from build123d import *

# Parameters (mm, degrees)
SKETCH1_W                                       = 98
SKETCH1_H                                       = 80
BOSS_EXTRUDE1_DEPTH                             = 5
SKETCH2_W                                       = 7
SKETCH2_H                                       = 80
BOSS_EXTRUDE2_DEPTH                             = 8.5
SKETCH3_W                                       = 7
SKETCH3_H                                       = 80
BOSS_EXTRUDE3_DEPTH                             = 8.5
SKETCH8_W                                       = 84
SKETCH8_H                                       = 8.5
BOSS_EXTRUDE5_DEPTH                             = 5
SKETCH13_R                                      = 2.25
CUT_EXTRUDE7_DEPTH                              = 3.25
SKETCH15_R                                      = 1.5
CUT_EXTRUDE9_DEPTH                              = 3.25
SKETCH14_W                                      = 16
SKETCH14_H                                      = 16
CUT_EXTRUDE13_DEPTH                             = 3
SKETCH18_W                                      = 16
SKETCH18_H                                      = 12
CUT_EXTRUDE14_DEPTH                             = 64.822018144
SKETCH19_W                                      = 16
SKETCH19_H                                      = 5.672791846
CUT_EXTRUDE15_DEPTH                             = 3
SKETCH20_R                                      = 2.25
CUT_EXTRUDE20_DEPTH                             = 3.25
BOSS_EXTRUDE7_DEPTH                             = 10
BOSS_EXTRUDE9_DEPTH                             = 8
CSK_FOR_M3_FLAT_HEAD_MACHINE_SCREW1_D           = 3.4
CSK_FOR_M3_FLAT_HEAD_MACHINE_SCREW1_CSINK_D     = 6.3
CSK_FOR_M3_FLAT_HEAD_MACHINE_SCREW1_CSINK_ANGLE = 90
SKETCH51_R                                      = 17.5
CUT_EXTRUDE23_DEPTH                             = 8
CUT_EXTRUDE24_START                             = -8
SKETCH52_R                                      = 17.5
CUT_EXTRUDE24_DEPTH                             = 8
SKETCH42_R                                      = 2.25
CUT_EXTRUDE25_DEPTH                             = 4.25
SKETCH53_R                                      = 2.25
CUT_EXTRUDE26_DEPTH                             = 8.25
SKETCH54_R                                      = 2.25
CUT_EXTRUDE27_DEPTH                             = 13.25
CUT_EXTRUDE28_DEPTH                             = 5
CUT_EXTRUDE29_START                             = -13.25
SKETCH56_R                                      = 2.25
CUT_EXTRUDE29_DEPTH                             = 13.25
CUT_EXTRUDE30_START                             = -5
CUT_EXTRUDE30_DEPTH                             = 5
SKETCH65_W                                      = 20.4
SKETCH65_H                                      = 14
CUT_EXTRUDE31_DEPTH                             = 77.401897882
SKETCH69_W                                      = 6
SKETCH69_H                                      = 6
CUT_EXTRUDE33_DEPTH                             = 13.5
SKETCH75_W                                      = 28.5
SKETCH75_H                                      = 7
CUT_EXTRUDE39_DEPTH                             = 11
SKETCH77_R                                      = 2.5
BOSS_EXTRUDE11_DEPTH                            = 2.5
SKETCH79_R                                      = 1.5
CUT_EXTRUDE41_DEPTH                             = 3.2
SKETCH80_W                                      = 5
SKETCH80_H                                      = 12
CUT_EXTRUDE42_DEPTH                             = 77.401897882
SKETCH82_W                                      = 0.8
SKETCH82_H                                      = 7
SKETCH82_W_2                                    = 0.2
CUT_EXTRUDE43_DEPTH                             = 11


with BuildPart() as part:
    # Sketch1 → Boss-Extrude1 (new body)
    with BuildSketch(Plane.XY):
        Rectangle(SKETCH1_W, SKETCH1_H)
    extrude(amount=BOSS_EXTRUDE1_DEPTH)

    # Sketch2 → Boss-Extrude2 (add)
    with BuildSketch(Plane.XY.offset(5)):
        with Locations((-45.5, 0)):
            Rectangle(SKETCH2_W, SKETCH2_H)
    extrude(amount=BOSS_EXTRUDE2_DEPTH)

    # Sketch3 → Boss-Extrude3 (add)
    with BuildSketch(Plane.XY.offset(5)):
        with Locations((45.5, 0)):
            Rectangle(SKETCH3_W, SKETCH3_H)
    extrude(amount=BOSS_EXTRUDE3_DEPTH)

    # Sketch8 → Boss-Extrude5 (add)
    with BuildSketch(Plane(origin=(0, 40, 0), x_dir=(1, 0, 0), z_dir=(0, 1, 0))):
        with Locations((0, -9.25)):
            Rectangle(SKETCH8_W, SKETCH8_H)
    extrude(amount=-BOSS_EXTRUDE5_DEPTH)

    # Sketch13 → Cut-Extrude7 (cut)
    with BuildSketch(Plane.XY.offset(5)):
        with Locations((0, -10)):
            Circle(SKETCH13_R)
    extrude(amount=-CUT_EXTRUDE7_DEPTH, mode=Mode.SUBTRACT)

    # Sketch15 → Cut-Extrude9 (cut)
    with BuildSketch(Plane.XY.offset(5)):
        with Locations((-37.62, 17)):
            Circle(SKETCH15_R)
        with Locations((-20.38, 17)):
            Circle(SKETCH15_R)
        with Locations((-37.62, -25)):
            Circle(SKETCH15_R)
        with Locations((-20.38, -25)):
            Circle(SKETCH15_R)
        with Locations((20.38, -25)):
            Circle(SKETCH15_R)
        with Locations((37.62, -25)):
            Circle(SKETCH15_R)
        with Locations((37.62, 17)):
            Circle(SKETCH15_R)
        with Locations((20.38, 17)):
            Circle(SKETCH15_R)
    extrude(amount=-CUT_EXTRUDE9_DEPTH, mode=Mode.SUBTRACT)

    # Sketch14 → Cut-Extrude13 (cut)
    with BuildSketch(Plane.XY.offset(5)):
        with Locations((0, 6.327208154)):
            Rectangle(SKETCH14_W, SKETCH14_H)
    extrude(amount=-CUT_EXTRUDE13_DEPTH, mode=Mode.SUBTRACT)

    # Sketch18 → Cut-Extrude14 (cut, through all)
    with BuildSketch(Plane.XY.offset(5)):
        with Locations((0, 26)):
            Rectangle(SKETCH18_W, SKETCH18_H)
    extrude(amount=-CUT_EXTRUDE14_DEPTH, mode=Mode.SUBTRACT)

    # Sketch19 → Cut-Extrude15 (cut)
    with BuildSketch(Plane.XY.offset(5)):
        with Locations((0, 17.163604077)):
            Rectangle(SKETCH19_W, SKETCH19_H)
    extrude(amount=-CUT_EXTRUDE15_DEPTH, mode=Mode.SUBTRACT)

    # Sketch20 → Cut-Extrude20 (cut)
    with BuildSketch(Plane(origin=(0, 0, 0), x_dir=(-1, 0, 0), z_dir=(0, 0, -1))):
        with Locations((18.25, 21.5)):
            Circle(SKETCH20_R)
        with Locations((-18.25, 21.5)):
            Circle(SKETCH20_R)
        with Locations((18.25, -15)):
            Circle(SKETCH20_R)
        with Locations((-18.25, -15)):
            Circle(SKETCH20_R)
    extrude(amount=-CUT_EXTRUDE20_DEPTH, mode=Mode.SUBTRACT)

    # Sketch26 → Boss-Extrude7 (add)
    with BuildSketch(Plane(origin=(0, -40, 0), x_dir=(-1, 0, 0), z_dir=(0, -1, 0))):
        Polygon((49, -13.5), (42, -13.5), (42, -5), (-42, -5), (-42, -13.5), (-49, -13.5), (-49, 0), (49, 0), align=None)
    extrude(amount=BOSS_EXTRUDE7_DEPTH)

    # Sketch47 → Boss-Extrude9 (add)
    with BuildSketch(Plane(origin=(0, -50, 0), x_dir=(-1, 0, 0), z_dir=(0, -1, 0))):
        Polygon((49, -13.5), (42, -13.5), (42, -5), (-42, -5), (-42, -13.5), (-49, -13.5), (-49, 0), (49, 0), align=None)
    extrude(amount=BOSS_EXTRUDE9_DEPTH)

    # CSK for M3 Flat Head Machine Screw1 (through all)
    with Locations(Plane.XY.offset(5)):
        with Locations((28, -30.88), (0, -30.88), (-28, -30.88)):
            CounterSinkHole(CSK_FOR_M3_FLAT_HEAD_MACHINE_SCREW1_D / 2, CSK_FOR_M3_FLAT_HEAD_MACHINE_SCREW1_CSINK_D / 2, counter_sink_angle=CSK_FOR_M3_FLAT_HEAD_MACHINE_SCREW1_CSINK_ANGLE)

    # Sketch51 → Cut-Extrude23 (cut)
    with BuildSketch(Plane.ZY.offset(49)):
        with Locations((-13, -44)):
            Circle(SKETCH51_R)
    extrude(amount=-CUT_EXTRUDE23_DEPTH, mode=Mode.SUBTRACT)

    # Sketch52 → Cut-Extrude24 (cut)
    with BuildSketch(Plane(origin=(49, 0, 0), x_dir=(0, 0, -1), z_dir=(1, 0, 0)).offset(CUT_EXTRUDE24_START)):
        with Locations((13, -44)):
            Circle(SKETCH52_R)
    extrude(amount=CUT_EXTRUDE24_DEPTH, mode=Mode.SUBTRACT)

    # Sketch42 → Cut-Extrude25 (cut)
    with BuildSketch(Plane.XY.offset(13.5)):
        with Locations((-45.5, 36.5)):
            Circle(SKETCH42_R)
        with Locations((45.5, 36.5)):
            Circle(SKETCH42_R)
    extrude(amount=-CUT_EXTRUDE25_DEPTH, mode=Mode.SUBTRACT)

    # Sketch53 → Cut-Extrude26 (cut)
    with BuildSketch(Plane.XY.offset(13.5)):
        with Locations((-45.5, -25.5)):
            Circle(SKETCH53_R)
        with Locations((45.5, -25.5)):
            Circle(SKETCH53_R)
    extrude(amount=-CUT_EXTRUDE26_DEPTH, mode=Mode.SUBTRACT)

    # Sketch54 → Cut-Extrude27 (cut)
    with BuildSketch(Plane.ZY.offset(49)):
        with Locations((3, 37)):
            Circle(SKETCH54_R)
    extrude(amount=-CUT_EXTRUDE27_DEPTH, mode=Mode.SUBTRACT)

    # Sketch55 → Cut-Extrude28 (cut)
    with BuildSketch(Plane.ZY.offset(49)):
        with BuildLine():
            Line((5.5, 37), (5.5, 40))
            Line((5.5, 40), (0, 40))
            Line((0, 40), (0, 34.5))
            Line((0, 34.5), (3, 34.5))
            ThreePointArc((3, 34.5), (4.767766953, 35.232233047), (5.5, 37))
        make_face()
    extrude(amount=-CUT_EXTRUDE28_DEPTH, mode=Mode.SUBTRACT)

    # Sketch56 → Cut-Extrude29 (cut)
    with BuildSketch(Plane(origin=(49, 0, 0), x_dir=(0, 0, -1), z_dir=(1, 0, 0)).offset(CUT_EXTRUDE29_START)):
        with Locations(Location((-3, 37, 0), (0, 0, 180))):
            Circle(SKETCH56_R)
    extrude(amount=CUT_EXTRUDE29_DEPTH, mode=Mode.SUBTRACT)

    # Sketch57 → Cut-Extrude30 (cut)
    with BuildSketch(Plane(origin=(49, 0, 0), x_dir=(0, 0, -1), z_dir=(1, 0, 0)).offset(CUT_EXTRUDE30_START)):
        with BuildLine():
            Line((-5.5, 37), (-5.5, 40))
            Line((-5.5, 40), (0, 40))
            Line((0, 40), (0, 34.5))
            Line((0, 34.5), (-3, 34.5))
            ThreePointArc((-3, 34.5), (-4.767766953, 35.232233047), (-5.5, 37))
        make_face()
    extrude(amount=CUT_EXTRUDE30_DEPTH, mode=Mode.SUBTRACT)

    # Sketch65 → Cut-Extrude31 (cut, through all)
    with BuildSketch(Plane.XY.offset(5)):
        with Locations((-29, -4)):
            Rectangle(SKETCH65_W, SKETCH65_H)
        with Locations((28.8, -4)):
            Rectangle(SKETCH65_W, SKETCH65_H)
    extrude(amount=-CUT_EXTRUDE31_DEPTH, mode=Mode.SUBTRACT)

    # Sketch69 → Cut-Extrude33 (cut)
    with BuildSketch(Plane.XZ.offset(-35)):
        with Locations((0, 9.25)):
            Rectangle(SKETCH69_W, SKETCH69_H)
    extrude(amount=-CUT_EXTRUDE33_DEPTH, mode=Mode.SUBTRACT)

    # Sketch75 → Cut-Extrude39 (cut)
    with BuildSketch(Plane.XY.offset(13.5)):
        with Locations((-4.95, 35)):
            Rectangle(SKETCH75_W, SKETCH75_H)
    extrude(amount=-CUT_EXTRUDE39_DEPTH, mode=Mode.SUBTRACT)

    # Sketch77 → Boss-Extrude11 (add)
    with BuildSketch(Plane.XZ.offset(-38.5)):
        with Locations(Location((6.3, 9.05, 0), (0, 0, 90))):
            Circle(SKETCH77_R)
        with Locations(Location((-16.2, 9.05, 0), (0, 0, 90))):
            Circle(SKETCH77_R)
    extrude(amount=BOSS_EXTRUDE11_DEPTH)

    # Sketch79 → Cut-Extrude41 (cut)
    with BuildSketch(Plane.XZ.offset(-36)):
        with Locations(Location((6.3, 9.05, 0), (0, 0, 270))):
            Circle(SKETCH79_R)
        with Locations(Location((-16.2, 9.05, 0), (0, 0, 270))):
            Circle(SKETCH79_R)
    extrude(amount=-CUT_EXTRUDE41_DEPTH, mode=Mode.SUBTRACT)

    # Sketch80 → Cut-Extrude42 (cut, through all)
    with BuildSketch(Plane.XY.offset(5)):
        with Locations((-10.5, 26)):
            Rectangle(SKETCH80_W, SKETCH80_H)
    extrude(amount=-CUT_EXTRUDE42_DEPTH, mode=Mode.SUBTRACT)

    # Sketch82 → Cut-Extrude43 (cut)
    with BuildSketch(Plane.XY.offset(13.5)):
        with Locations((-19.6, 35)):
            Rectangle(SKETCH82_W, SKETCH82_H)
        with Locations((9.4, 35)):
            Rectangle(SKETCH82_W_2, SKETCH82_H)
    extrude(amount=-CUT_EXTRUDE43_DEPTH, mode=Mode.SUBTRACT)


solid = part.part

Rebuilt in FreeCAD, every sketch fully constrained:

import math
import FreeCAD as App
import Part
import Sketcher

V = App.Vector


def add_polygon(sketch, points):
    """Adds a closed chain of lines whose ends are joined by coincident constraints."""
    first, n = sketch.GeometryCount, len(points)
    for a, b in zip(points, points[1:] + points[:1]):
        sketch.addGeometry(Part.LineSegment(App.Vector(*a, 0), App.Vector(*b, 0)), False)
    for i in range(n):
        sketch.addConstraint(Sketcher.Constraint("Coincident", first + i, 2, first + (i + 1) % n, 1))

doc = App.newDocument("Part")
params = doc.addObject("Spreadsheet::Sheet", "Params")
for row, (alias, value) in enumerate([
    ("sketch1_width", "98 mm"),
    ("sketch1_height", "80 mm"),
    ("pad1_length", "5 mm"),
    ("sketch2_width", "7 mm"),
    ("sketch2_height", "80 mm"),
    ("pad2_length", "8.5 mm"),
    ("sketch3_width", "7 mm"),
    ("sketch3_height", "80 mm"),
    ("pad3_length", "8.5 mm"),
    ("sketch4_width", "84 mm"),
    ("sketch4_height", "8.5 mm"),
    ("pad4_length", "5 mm"),
    ("sketch5_diameter", "4.5 mm"),
    ("pocket1_length", "3.25 mm"),
    ("sketch6_diameter", "3 mm"),
    ("pocket2_length", "3.25 mm"),
    ("sketch7_width", "16 mm"),
    ("pocket3_length", "3 mm"),
    ("sketch8_width", "16 mm"),
    ("sketch8_height", "12 mm"),
    ("sketch9_width", "16 mm"),
    ("pocket5_length", "3 mm"),
    ("sketch10_diameter", "4.5 mm"),
    ("pocket6_length", "3.25 mm"),
    ("sketch11_width", "7 mm"),
    ("sketch11_width2", "98 mm"),
    ("sketch11_height", "13.5 mm"),
    ("sketch11_height2", "8.5 mm"),
    ("pad5_length", "10 mm"),
    ("sketch12_width", "7 mm"),
    ("sketch12_width2", "98 mm"),
    ("sketch12_height", "13.5 mm"),
    ("sketch12_height2", "8.5 mm"),
    ("pad6_length", "8 mm"),
    ("sketch13_diameter", "3.4 mm"),
    ("hole_diameter", "3.4 mm"),
    ("hole_csink_diameter", "6.3 mm"),
    ("sketch14_diameter", "35 mm"),
    ("pocket7_length", "8 mm"),
    ("sketch15_diameter", "35 mm"),
    ("pocket8_length", "8 mm"),
    ("sketch16_diameter", "4.5 mm"),
    ("pocket9_length", "4.25 mm"),
    ("sketch17_diameter", "4.5 mm"),
    ("pocket10_length", "8.25 mm"),
    ("sketch18_diameter", "4.5 mm"),
    ("pocket11_length", "13.25 mm"),
    ("sketch19_radius", "2.5 mm"),
    ("sketch19_width", "3 mm"),
    ("pocket12_length", "5 mm"),
    ("sketch20_diameter", "4.5 mm"),
    ("pocket13_length", "13.25 mm"),
    ("sketch21_radius", "2.5 mm"),
    ("sketch21_width", "3 mm"),
    ("pocket14_length", "5 mm"),
    ("sketch22_height", "14 mm"),
    ("sketch22_width", "20.4 mm"),
    ("sketch23_width", "6 mm"),
    ("pocket16_length", "13.5 mm"),
    ("sketch24_height", "7 mm"),
    ("sketch24_width", "28.5 mm"),
    ("pocket17_length", "11 mm"),
    ("sketch25_diameter", "5 mm"),
    ("pad7_length", "2.5 mm"),
    ("sketch26_diameter", "3 mm"),
    ("pocket18_length", "3.2 mm"),
    ("sketch27_width", "5 mm"),
    ("sketch27_height", "12 mm"),
    ("sketch28_height", "7 mm"),
    ("sketch28_width", "0.8 mm"),
    ("sketch28_width2", "0.2 mm"),
    ("pocket20_length", "11 mm"),
], start=1):
    params.set(f"A{row}", alias)
    params.set(f"B{row}", "=" + value)
    params.setAlias(f"B{row}", alias)

body = doc.addObject("PartDesign::Body", "Body")

# Sketch on XY plane
sketch1 = doc.addObject("Sketcher::SketchObject", "Sketch")
body.addObject(sketch1)
sketch1.AttachmentSupport = (doc.XY_Plane, [""])
sketch1.MapMode = "FlatFace"
add_polygon(sketch1, [(-49, 40), (-49, -40), (49, -40), (49, 40)])  # lines 0-3
sketch1.addConstraint(Sketcher.Constraint("Vertical", 0))
sketch1.addConstraint(Sketcher.Constraint("Horizontal", 1))
sketch1.addConstraint(Sketcher.Constraint("Vertical", 2))
sketch1.addConstraint(Sketcher.Constraint("Horizontal", 3))
sketch1.addConstraint(Sketcher.Constraint("Symmetric", 0, 2, 2, 2, -1, 1))
sketch1.addConstraint(Sketcher.Constraint("DistanceX", 1, 1, 1, 2, 98.0))
sketch1.addConstraint(Sketcher.Constraint("DistanceY", 0, 2, 0, 1, 80.0))
sketch1.setExpression("Constraints[9]", "Params.sketch1_width")
sketch1.setExpression("Constraints[10]", "Params.sketch1_height")
pad1 = doc.addObject("PartDesign::Pad", "Pad")
body.addObject(pad1)
pad1.Profile = sketch1
pad1.setExpression("Length", "Params.pad1_length")

# Sketch on XY plane
sketch2 = doc.addObject("Sketcher::SketchObject", "Sketch001")
body.addObject(sketch2)
sketch2.AttachmentSupport = (doc.XY_Plane, [""])
sketch2.MapMode = "FlatFace"
sketch2.AttachmentOffset = App.Placement(V(0, 0, 5), App.Rotation())
add_polygon(sketch2, [(-49, 40), (-49, -40), (-42, -40), (-42, 40)])  # lines 0-3
sketch2.addConstraint(Sketcher.Constraint("Vertical", 0))
sketch2.addConstraint(Sketcher.Constraint("Horizontal", 1))
sketch2.addConstraint(Sketcher.Constraint("Vertical", 2))
sketch2.addConstraint(Sketcher.Constraint("Horizontal", 3))
sketch2.addConstraint(Sketcher.Constraint("DistanceX", 1, 1, 1, 2, 7.0))
sketch2.addConstraint(Sketcher.Constraint("DistanceY", 0, 2, 0, 1, 80.0))
sketch2.addConstraint(Sketcher.Constraint("DistanceX", 0, 2, -1, 1, 49.0))
sketch2.addConstraint(Sketcher.Constraint("DistanceY", 0, 2, -1, 1, 40.0))
sketch2.setExpression("Constraints[8]", "Params.sketch2_width")
sketch2.setExpression("Constraints[9]", "Params.sketch2_height")
pad2 = doc.addObject("PartDesign::Pad", "Pad001")
body.addObject(pad2)
pad2.Profile = sketch2
pad2.setExpression("Length", "Params.pad2_length")

# Sketch on XY plane
sketch3 = doc.addObject("Sketcher::SketchObject", "Sketch002")
body.addObject(sketch3)
sketch3.AttachmentSupport = (doc.XY_Plane, [""])
sketch3.MapMode = "FlatFace"
sketch3.AttachmentOffset = App.Placement(V(0, 0, 5), App.Rotation())
add_polygon(sketch3, [(42, 40), (42, -40), (49, -40), (49, 40)])  # lines 0-3
sketch3.addConstraint(Sketcher.Constraint("Vertical", 0))
sketch3.addConstraint(Sketcher.Constraint("Horizontal", 1))
sketch3.addConstraint(Sketcher.Constraint("Vertical", 2))
sketch3.addConstraint(Sketcher.Constraint("Horizontal", 3))
sketch3.addConstraint(Sketcher.Constraint("DistanceX", 1, 1, 1, 2, 7.0))
sketch3.addConstraint(Sketcher.Constraint("DistanceY", 0, 2, 0, 1, 80.0))
sketch3.addConstraint(Sketcher.Constraint("DistanceX", -1, 1, 0, 2, 42.0))
sketch3.addConstraint(Sketcher.Constraint("DistanceY", 0, 2, -1, 1, 40.0))
sketch3.setExpression("Constraints[8]", "Params.sketch3_width")
sketch3.setExpression("Constraints[9]", "Params.sketch3_height")
pad3 = doc.addObject("PartDesign::Pad", "Pad002")
body.addObject(pad3)
pad3.Profile = sketch3
pad3.setExpression("Length", "Params.pad3_length")

# Sketch on XZ plane
sketch4 = doc.addObject("Sketcher::SketchObject", "Sketch003")
body.addObject(sketch4)
sketch4.AttachmentSupport = (doc.XZ_Plane, [""])
sketch4.MapMode = "FlatFace"
sketch4.AttachmentOffset = App.Placement(V(0, 0, -40), App.Rotation())
add_polygon(sketch4, [(-42, 5), (-42, 14), (42, 14), (42, 5)])  # lines 0-3
sketch4.addConstraint(Sketcher.Constraint("Vertical", 0))
sketch4.addConstraint(Sketcher.Constraint("Horizontal", 1))
sketch4.addConstraint(Sketcher.Constraint("Vertical", 2))
sketch4.addConstraint(Sketcher.Constraint("Horizontal", 3))
sketch4.addConstraint(Sketcher.Constraint("DistanceX", 1, 1, 1, 2, 84.0))
sketch4.addConstraint(Sketcher.Constraint("DistanceY", 0, 1, 0, 2, 8.5))
sketch4.addConstraint(Sketcher.Constraint("DistanceX", 0, 2, -1, 1, 42.0))
sketch4.addConstraint(Sketcher.Constraint("DistanceY", -1, 1, 2, 2, 5.0))
sketch4.setExpression("Constraints[8]", "Params.sketch4_width")
sketch4.setExpression("Constraints[9]", "Params.sketch4_height")
pad4 = doc.addObject("PartDesign::Pad", "Pad003")
body.addObject(pad4)
pad4.Profile = sketch4
pad4.setExpression("Length", "Params.pad4_length")

# Sketch on XY plane
sketch5 = doc.addObject("Sketcher::SketchObject", "Sketch004")
body.addObject(sketch5)
sketch5.AttachmentSupport = (doc.XY_Plane, [""])
sketch5.MapMode = "FlatFace"
sketch5.AttachmentOffset = App.Placement(V(0, 0, 5), App.Rotation())
sketch5.addGeometry(Part.Circle(V(0, -10, 0), V(0, 0, 1), 2.2), False)
sketch5.addConstraint(Sketcher.Constraint("PointOnObject", 0, 3, -2))
sketch5.addConstraint(Sketcher.Constraint("Diameter", 0, 4.5))
sketch5.addConstraint(Sketcher.Constraint("DistanceY", 0, 3, -1, 1, 10.0))
sketch5.setExpression("Constraints[1]", "Params.sketch5_diameter")
pocket1 = doc.addObject("PartDesign::Pocket", "Pocket")
body.addObject(pocket1)
pocket1.Profile = sketch5
pocket1.setExpression("Length", "Params.pocket1_length")

# Sketch on XY plane
sketch6 = doc.addObject("Sketcher::SketchObject", "Sketch005")
body.addObject(sketch6)
sketch6.AttachmentSupport = (doc.XY_Plane, [""])
sketch6.MapMode = "FlatFace"
sketch6.AttachmentOffset = App.Placement(V(0, 0, 5), App.Rotation())
sketch6.addGeometry(Part.Circle(V(-37.6, 17, 0), V(0, 0, 1), 1.5), False)
sketch6.addGeometry(Part.Circle(V(-20.4, 17, 0), V(0, 0, 1), 1.5), False)
sketch6.addGeometry(Part.Circle(V(-37.6, -25, 0), V(0, 0, 1), 1.5), False)
sketch6.addGeometry(Part.Circle(V(-20.4, -25, 0), V(0, 0, 1), 1.5), False)
sketch6.addGeometry(Part.Circle(V(20.4, -25, 0), V(0, 0, 1), 1.5), False)
sketch6.addGeometry(Part.Circle(V(37.6, -25, 0), V(0, 0, 1), 1.5), False)
sketch6.addGeometry(Part.Circle(V(37.6, 17, 0), V(0, 0, 1), 1.5), False)
sketch6.addGeometry(Part.Circle(V(20.4, 17, 0), V(0, 0, 1), 1.5), False)
sketch6.addConstraint(Sketcher.Constraint("Equal", 0, 1))
sketch6.addConstraint(Sketcher.Constraint("Equal", 1, 2))
sketch6.addConstraint(Sketcher.Constraint("Equal", 2, 3))
sketch6.addConstraint(Sketcher.Constraint("Equal", 3, 4))
sketch6.addConstraint(Sketcher.Constraint("Equal", 4, 5))
sketch6.addConstraint(Sketcher.Constraint("Equal", 5, 6))
sketch6.addConstraint(Sketcher.Constraint("Equal", 6, 7))
sketch6.addConstraint(Sketcher.Constraint("Symmetric", 3, 3, 4, 3, -2))
sketch6.addConstraint(Sketcher.Constraint("Symmetric", 2, 3, 5, 3, -2))
sketch6.addConstraint(Sketcher.Constraint("Symmetric", 0, 3, 6, 3, -2))
sketch6.addConstraint(Sketcher.Constraint("Symmetric", 1, 3, 7, 3, -2))
sketch6.addConstraint(Sketcher.Constraint("Horizontal", 0, 3, 1, 3))
sketch6.addConstraint(Sketcher.Constraint("Horizontal", 2, 3, 3, 3))
sketch6.addConstraint(Sketcher.Constraint("Vertical", 0, 3, 2, 3))
sketch6.addConstraint(Sketcher.Constraint("Vertical", 1, 3, 3, 3))
sketch6.addConstraint(Sketcher.Constraint("Diameter", 0, 3.0))
sketch6.addConstraint(Sketcher.Constraint("DistanceY", -1, 1, 0, 3, 17.0))
sketch6.addConstraint(Sketcher.Constraint("DistanceY", 2, 3, -1, 1, 25.0))
sketch6.addConstraint(Sketcher.Constraint("DistanceX", 2, 3, 4, 3, 58.0))
sketch6.addConstraint(Sketcher.Constraint("DistanceX", 0, 3, -1, 1, 37.62))
sketch6.setExpression("Constraints[15]", "Params.sketch6_diameter")
pocket2 = doc.addObject("PartDesign::Pocket", "Pocket001")
body.addObject(pocket2)
pocket2.Profile = sketch6
pocket2.setExpression("Length", "Params.pocket2_length")

# Sketch on XY plane
sketch7 = doc.addObject("Sketcher::SketchObject", "Sketch006")
body.addObject(sketch7)
sketch7.AttachmentSupport = (doc.XY_Plane, [""])
sketch7.MapMode = "FlatFace"
sketch7.AttachmentOffset = App.Placement(V(0, 0, 5), App.Rotation())
add_polygon(sketch7, [(-8, 14), (-8, -2), (8, -2), (8, 14)])  # lines 0-3
sketch7.addConstraint(Sketcher.Constraint("Vertical", 0))
sketch7.addConstraint(Sketcher.Constraint("Horizontal", 1))
sketch7.addConstraint(Sketcher.Constraint("Vertical", 2))
sketch7.addConstraint(Sketcher.Constraint("Horizontal", 3))
sketch7.addConstraint(Sketcher.Constraint("Equal", 3, 0))
sketch7.addConstraint(Sketcher.Constraint("DistanceX", 1, 1, 1, 2, 16.0))
sketch7.addConstraint(Sketcher.Constraint("DistanceX", 0, 2, -1, 1, 8.0))
sketch7.addConstraint(Sketcher.Constraint("DistanceY", 0, 2, -1, 1, 1.672792))
sketch7.setExpression("Constraints[9]", "Params.sketch7_width")
pocket3 = doc.addObject("PartDesign::Pocket", "Pocket002")
body.addObject(pocket3)
pocket3.Profile = sketch7
pocket3.setExpression("Length", "Params.pocket3_length")

# Sketch on XY plane
sketch8 = doc.addObject("Sketcher::SketchObject", "Sketch007")
body.addObject(sketch8)
sketch8.AttachmentSupport = (doc.XY_Plane, [""])
sketch8.MapMode = "FlatFace"
sketch8.AttachmentOffset = App.Placement(V(0, 0, 5), App.Rotation())
add_polygon(sketch8, [(-8, 32), (-8, 20), (8, 20), (8, 32)])  # lines 0-3
sketch8.addConstraint(Sketcher.Constraint("Vertical", 0))
sketch8.addConstraint(Sketcher.Constraint("Horizontal", 1))
sketch8.addConstraint(Sketcher.Constraint("Vertical", 2))
sketch8.addConstraint(Sketcher.Constraint("Horizontal", 3))
sketch8.addConstraint(Sketcher.Constraint("DistanceX", 1, 1, 1, 2, 16.0))
sketch8.addConstraint(Sketcher.Constraint("DistanceY", 0, 2, 0, 1, 12.0))
sketch8.addConstraint(Sketcher.Constraint("DistanceX", 0, 2, -1, 1, 8.0))
sketch8.addConstraint(Sketcher.Constraint("DistanceY", -1, 1, 0, 2, 20.0))
sketch8.setExpression("Constraints[8]", "Params.sketch8_width")
sketch8.setExpression("Constraints[9]", "Params.sketch8_height")
pocket4 = doc.addObject("PartDesign::Pocket", "Pocket003")
body.addObject(pocket4)
pocket4.Profile = sketch8
pocket4.Type = "ThroughAll"

# Sketch on XY plane
sketch9 = doc.addObject("Sketcher::SketchObject", "Sketch008")
body.addObject(sketch9)
sketch9.AttachmentSupport = (doc.XY_Plane, [""])
sketch9.MapMode = "FlatFace"
sketch9.AttachmentOffset = App.Placement(V(0, 0, 5), App.Rotation())
add_polygon(sketch9, [(-8, 20), (-8, 14), (8, 14), (8, 20)])  # lines 0-3
sketch9.addConstraint(Sketcher.Constraint("Vertical", 0))
sketch9.addConstraint(Sketcher.Constraint("Horizontal", 1))
sketch9.addConstraint(Sketcher.Constraint("Vertical", 2))
sketch9.addConstraint(Sketcher.Constraint("Horizontal", 3))
sketch9.addConstraint(Sketcher.Constraint("DistanceX", 1, 1, 1, 2, 16.0))
sketch9.addConstraint(Sketcher.Constraint("DistanceX", 0, 2, -1, 1, 8.0))
sketch9.addConstraint(Sketcher.Constraint("DistanceY", -1, 1, 2, 2, 20.0))
sketch9.addConstraint(Sketcher.Constraint("DistanceY", 0, 2, 0, 1, 5.672792))
sketch9.setExpression("Constraints[8]", "Params.sketch9_width")
pocket5 = doc.addObject("PartDesign::Pocket", "Pocket004")
body.addObject(pocket5)
pocket5.Profile = sketch9
pocket5.setExpression("Length", "Params.pocket5_length")

# Sketch on XY plane
sketch10 = doc.addObject("Sketcher::SketchObject", "Sketch009")
body.addObject(sketch10)
sketch10.AttachmentSupport = (doc.XY_Plane, [""])
sketch10.MapMode = "FlatFace"
sketch10.addGeometry(Part.Circle(V(-18.2, 21.5, 0), V(0, 0, 1), 2.2), False)
sketch10.addGeometry(Part.Circle(V(18.2, 21.5, 0), V(0, 0, 1), 2.2), False)
sketch10.addGeometry(Part.Circle(V(-18.2, -15, 0), V(0, 0, 1), 2.2), False)
sketch10.addGeometry(Part.Circle(V(18.2, -15, 0), V(0, 0, 1), 2.2), False)
sketch10.addConstraint(Sketcher.Constraint("Equal", 0, 1))
sketch10.addConstraint(Sketcher.Constraint("Equal", 1, 2))
sketch10.addConstraint(Sketcher.Constraint("Equal", 2, 3))
sketch10.addConstraint(Sketcher.Constraint("Symmetric", 0, 3, 1, 3, -2))
sketch10.addConstraint(Sketcher.Constraint("Symmetric", 2, 3, 3, 3, -2))
sketch10.addConstraint(Sketcher.Constraint("Vertical", 0, 3, 2, 3))
sketch10.addConstraint(Sketcher.Constraint("Diameter", 0, 4.5))
sketch10.addConstraint(Sketcher.Constraint("DistanceY", 2, 3, -1, 1, 15.0))
sketch10.addConstraint(Sketcher.Constraint("DistanceY", -1, 1, 0, 3, 21.5))
sketch10.addConstraint(Sketcher.Constraint("DistanceX", 0, 3, 1, 3, 36.5))
sketch10.setExpression("Constraints[6]", "Params.sketch10_diameter")
pocket6 = doc.addObject("PartDesign::Pocket", "Pocket005")
body.addObject(pocket6)
pocket6.Profile = sketch10
pocket6.setExpression("Length", "Params.pocket6_length")
pocket6.Reversed = True

# Sketch on XZ plane
sketch11 = doc.addObject("Sketcher::SketchObject", "Sketch010")
body.addObject(sketch11)
sketch11.AttachmentSupport = (doc.XZ_Plane, [""])
sketch11.MapMode = "FlatFace"
sketch11.AttachmentOffset = App.Placement(V(0, 0, 40), App.Rotation())
add_polygon(sketch11, [(-42, 14), (-49, 14), (-49, 0), (49, 0), (49, 14), (42, 14), (42, 5), (-42, 5)])  # lines 0-7
sketch11.addConstraint(Sketcher.Constraint("Horizontal", 0))
sketch11.addConstraint(Sketcher.Constraint("Vertical", 1))
sketch11.addConstraint(Sketcher.Constraint("Horizontal", 2))
sketch11.addConstraint(Sketcher.Constraint("Vertical", 3))
sketch11.addConstraint(Sketcher.Constraint("Horizontal", 4))
sketch11.addConstraint(Sketcher.Constraint("Vertical", 5))
sketch11.addConstraint(Sketcher.Constraint("Horizontal", 6))
sketch11.addConstraint(Sketcher.Constraint("Vertical", 7))
sketch11.addConstraint(Sketcher.Constraint("Symmetric", 1, 2, 2, 2, -1, 1))
sketch11.addConstraint(Sketcher.Constraint("Symmetric", 4, 2, 7, 2, -2))
sketch11.addConstraint(Sketcher.Constraint("DistanceX", 0, 2, 0, 1, 7.0))
sketch11.addConstraint(Sketcher.Constraint("DistanceX", 2, 1, 2, 2, 98.0))
sketch11.addConstraint(Sketcher.Constraint("DistanceY", 1, 2, 1, 1, 13.5))
sketch11.addConstraint(Sketcher.Constraint("DistanceY", 5, 2, 5, 1, 8.5))
sketch11.setExpression("Constraints[18]", "Params.sketch11_width")
sketch11.setExpression("Constraints[19]", "Params.sketch11_width2")
sketch11.setExpression("Constraints[20]", "Params.sketch11_height")
sketch11.setExpression("Constraints[21]", "Params.sketch11_height2")
pad5 = doc.addObject("PartDesign::Pad", "Pad004")
body.addObject(pad5)
pad5.Profile = sketch11
pad5.setExpression("Length", "Params.pad5_length")

# Sketch on XZ plane
sketch12 = doc.addObject("Sketcher::SketchObject", "Sketch011")
body.addObject(sketch12)
sketch12.AttachmentSupport = (doc.XZ_Plane, [""])
sketch12.MapMode = "FlatFace"
sketch12.AttachmentOffset = App.Placement(V(0, 0, 50), App.Rotation())
add_polygon(sketch12, [(-42, 14), (-49, 14), (-49, 0), (49, 0), (49, 14), (42, 14), (42, 5), (-42, 5)])  # lines 0-7
sketch12.addConstraint(Sketcher.Constraint("Horizontal", 0))
sketch12.addConstraint(Sketcher.Constraint("Vertical", 1))
sketch12.addConstraint(Sketcher.Constraint("Horizontal", 2))
sketch12.addConstraint(Sketcher.Constraint("Vertical", 3))
sketch12.addConstraint(Sketcher.Constraint("Horizontal", 4))
sketch12.addConstraint(Sketcher.Constraint("Vertical", 5))
sketch12.addConstraint(Sketcher.Constraint("Horizontal", 6))
sketch12.addConstraint(Sketcher.Constraint("Vertical", 7))
sketch12.addConstraint(Sketcher.Constraint("Symmetric", 1, 2, 2, 2, -1, 1))
sketch12.addConstraint(Sketcher.Constraint("Symmetric", 4, 2, 7, 2, -2))
sketch12.addConstraint(Sketcher.Constraint("DistanceX", 0, 2, 0, 1, 7.0))
sketch12.addConstraint(Sketcher.Constraint("DistanceX", 2, 1, 2, 2, 98.0))
sketch12.addConstraint(Sketcher.Constraint("DistanceY", 1, 2, 1, 1, 13.5))
sketch12.addConstraint(Sketcher.Constraint("DistanceY", 5, 2, 5, 1, 8.5))
sketch12.setExpression("Constraints[18]", "Params.sketch12_width")
sketch12.setExpression("Constraints[19]", "Params.sketch12_width2")
sketch12.setExpression("Constraints[20]", "Params.sketch12_height")
sketch12.setExpression("Constraints[21]", "Params.sketch12_height2")
pad6 = doc.addObject("PartDesign::Pad", "Pad005")
body.addObject(pad6)
pad6.Profile = sketch12
pad6.setExpression("Length", "Params.pad6_length")

# Sketch on XY plane
sketch13 = doc.addObject("Sketcher::SketchObject", "Sketch012")
body.addObject(sketch13)
sketch13.AttachmentSupport = (doc.XY_Plane, [""])
sketch13.MapMode = "FlatFace"
sketch13.AttachmentOffset = App.Placement(V(0, 0, 5), App.Rotation())
sketch13.addGeometry(Part.Circle(V(28, -30.9, 0), V(0, 0, 1), 1.7), False)
sketch13.addGeometry(Part.Circle(V(0, -30.9, 0), V(0, 0, 1), 1.7), False)
sketch13.addGeometry(Part.Circle(V(-28, -30.9, 0), V(0, 0, 1), 1.7), False)
sketch13.addConstraint(Sketcher.Constraint("Equal", 0, 1))
sketch13.addConstraint(Sketcher.Constraint("Equal", 1, 2))
sketch13.addConstraint(Sketcher.Constraint("Symmetric", 0, 3, 2, 3, -2))
sketch13.addConstraint(Sketcher.Constraint("PointOnObject", 1, 3, -2))
sketch13.addConstraint(Sketcher.Constraint("Horizontal", 0, 3, 1, 3))
sketch13.addConstraint(Sketcher.Constraint("Diameter", 0, 3.4))
sketch13.addConstraint(Sketcher.Constraint("DistanceX", -1, 1, 0, 3, 28.0))
sketch13.addConstraint(Sketcher.Constraint("DistanceY", 0, 3, -1, 1, 30.88))
sketch13.setExpression("Constraints[5]", "Params.sketch13_diameter")
doc.recompute()
hole = doc.addObject("PartDesign::Hole", "Hole")
body.addObject(hole)
hole.Profile = sketch13
hole.ThreadType = "None"
hole.setExpression("Diameter", "Params.hole_diameter")
hole.DepthType = "ThroughAll"
hole.HoleCutType = "Countersink"
hole.setExpression("HoleCutDiameter", "Params.hole_csink_diameter")
hole.HoleCutCountersinkAngle = 90

# Sketch on YZ plane
sketch14 = doc.addObject("Sketcher::SketchObject", "Sketch013")
body.addObject(sketch14)
sketch14.AttachmentSupport = (doc.YZ_Plane, [""])
sketch14.MapMode = "FlatFace"
sketch14.AttachmentOffset = App.Placement(V(0, 0, -49), App.Rotation())
sketch14.addGeometry(Part.Circle(V(-44, -13, 0), V(0, 0, 1), 18), False)
sketch14.addConstraint(Sketcher.Constraint("Diameter", 0, 35.0))
sketch14.addConstraint(Sketcher.Constraint("DistanceX", 0, 3, -1, 1, 44.0))
sketch14.addConstraint(Sketcher.Constraint("DistanceY", 0, 3, -1, 1, 13.0))
sketch14.setExpression("Constraints[0]", "Params.sketch14_diameter")
pocket7 = doc.addObject("PartDesign::Pocket", "Pocket006")
body.addObject(pocket7)
pocket7.Profile = sketch14
pocket7.setExpression("Length", "Params.pocket7_length")
pocket7.Reversed = True

# Sketch on YZ plane
sketch15 = doc.addObject("Sketcher::SketchObject", "Sketch014")
body.addObject(sketch15)
sketch15.AttachmentSupport = (doc.YZ_Plane, [""])
sketch15.MapMode = "FlatFace"
sketch15.AttachmentOffset = App.Placement(V(0, 0, 41), App.Rotation())
sketch15.addGeometry(Part.Circle(V(-44, -13, 0), V(0, 0, 1), 18), False)
sketch15.addConstraint(Sketcher.Constraint("Diameter", 0, 35.0))
sketch15.addConstraint(Sketcher.Constraint("DistanceX", 0, 3, -1, 1, 44.0))
sketch15.addConstraint(Sketcher.Constraint("DistanceY", 0, 3, -1, 1, 13.0))
sketch15.setExpression("Constraints[0]", "Params.sketch15_diameter")
pocket8 = doc.addObject("PartDesign::Pocket", "Pocket007")
body.addObject(pocket8)
pocket8.Profile = sketch15
pocket8.setExpression("Length", "Params.pocket8_length")
pocket8.Reversed = True

# Sketch on XY plane
sketch16 = doc.addObject("Sketcher::SketchObject", "Sketch015")
body.addObject(sketch16)
sketch16.AttachmentSupport = (doc.XY_Plane, [""])
sketch16.MapMode = "FlatFace"
sketch16.AttachmentOffset = App.Placement(V(0, 0, 13.5), App.Rotation())
sketch16.addGeometry(Part.Circle(V(-45.5, 36.5, 0), V(0, 0, 1), 2.2), False)
sketch16.addGeometry(Part.Circle(V(45.5, 36.5, 0), V(0, 0, 1), 2.2), False)
sketch16.addConstraint(Sketcher.Constraint("Equal", 0, 1))
sketch16.addConstraint(Sketcher.Constraint("Symmetric", 0, 3, 1, 3, -2))
sketch16.addConstraint(Sketcher.Constraint("Diameter", 0, 4.5))
sketch16.addConstraint(Sketcher.Constraint("DistanceX", 0, 3, 1, 3, 91.0))
sketch16.addConstraint(Sketcher.Constraint("DistanceY", -1, 1, 0, 3, 36.5))
sketch16.setExpression("Constraints[2]", "Params.sketch16_diameter")
pocket9 = doc.addObject("PartDesign::Pocket", "Pocket008")
body.addObject(pocket9)
pocket9.Profile = sketch16
pocket9.setExpression("Length", "Params.pocket9_length")

# Sketch on XY plane
sketch17 = doc.addObject("Sketcher::SketchObject", "Sketch016")
body.addObject(sketch17)
sketch17.AttachmentSupport = (doc.XY_Plane, [""])
sketch17.MapMode = "FlatFace"
sketch17.AttachmentOffset = App.Placement(V(0, 0, 13.5), App.Rotation())
sketch17.addGeometry(Part.Circle(V(-45.5, -25.5, 0), V(0, 0, 1), 2.2), False)
sketch17.addGeometry(Part.Circle(V(45.5, -25.5, 0), V(0, 0, 1), 2.2), False)
sketch17.addConstraint(Sketcher.Constraint("Equal", 0, 1))
sketch17.addConstraint(Sketcher.Constraint("Symmetric", 0, 3, 1, 3, -2))
sketch17.addConstraint(Sketcher.Constraint("Diameter", 0, 4.5))
sketch17.addConstraint(Sketcher.Constraint("DistanceX", 0, 3, 1, 3, 91.0))
sketch17.addConstraint(Sketcher.Constraint("DistanceY", 0, 3, -1, 1, 25.5))
sketch17.setExpression("Constraints[2]", "Params.sketch17_diameter")
pocket10 = doc.addObject("PartDesign::Pocket", "Pocket009")
body.addObject(pocket10)
pocket10.Profile = sketch17
pocket10.setExpression("Length", "Params.pocket10_length")

# Sketch on YZ plane
sketch18 = doc.addObject("Sketcher::SketchObject", "Sketch017")
body.addObject(sketch18)
sketch18.AttachmentSupport = (doc.YZ_Plane, [""])
sketch18.MapMode = "FlatFace"
sketch18.AttachmentOffset = App.Placement(V(0, 0, -49), App.Rotation())
sketch18.addGeometry(Part.Circle(V(37, 3, 0), V(0, 0, 1), 2.2), False)
sketch18.addConstraint(Sketcher.Constraint("Diameter", 0, 4.5))
sketch18.addConstraint(Sketcher.Constraint("DistanceX", -1, 1, 0, 3, 37.0))
sketch18.addConstraint(Sketcher.Constraint("DistanceY", -1, 1, 0, 3, 3.0))
sketch18.setExpression("Constraints[0]", "Params.sketch18_diameter")
pocket11 = doc.addObject("PartDesign::Pocket", "Pocket010")
body.addObject(pocket11)
pocket11.Profile = sketch18
pocket11.setExpression("Length", "Params.pocket11_length")
pocket11.Reversed = True

# Sketch on YZ plane
sketch19 = doc.addObject("Sketcher::SketchObject", "Sketch018")
body.addObject(sketch19)
sketch19.AttachmentSupport = (doc.YZ_Plane, [""])
sketch19.MapMode = "FlatFace"
sketch19.AttachmentOffset = App.Placement(V(0, 0, -49), App.Rotation())
sketch19.addGeometry(Part.LineSegment(V(37, 5.5, 0), V(40, 5.5, 0)), False)
sketch19.addGeometry(Part.LineSegment(V(40, 5.5, 0), V(40, 0, 0)), False)
sketch19.addGeometry(Part.LineSegment(V(40, 0, 0), V(34.5, 0, 0)), False)
sketch19.addGeometry(Part.LineSegment(V(34.5, 0, 0), V(34.5, 3, 0)), False)
sketch19.addGeometry(Part.ArcOfCircle(Part.Circle(V(37, 3, 0), V(0, 0, 1), 2.5), math.radians(90), math.radians(180)), False)
sketch19.addConstraint(Sketcher.Constraint("Coincident", 0, 2, 1, 1))
sketch19.addConstraint(Sketcher.Constraint("Coincident", 1, 2, 2, 1))
sketch19.addConstraint(Sketcher.Constraint("Coincident", 2, 2, 3, 1))
sketch19.addConstraint(Sketcher.Constraint("Tangent", 3, 2, 4, 2))
sketch19.addConstraint(Sketcher.Constraint("Tangent", 4, 1, 0, 1))
sketch19.addConstraint(Sketcher.Constraint("Horizontal", 0))
sketch19.addConstraint(Sketcher.Constraint("Vertical", 1))
sketch19.addConstraint(Sketcher.Constraint("Horizontal", 2))
sketch19.addConstraint(Sketcher.Constraint("Vertical", 3))
sketch19.addConstraint(Sketcher.Constraint("PointOnObject", 1, 2, -1))
sketch19.addConstraint(Sketcher.Constraint("Equal", 2, 1))
sketch19.addConstraint(Sketcher.Constraint("Radius", 4, 2.5))
sketch19.addConstraint(Sketcher.Constraint("DistanceX", 0, 1, 0, 2, 3.0))
sketch19.addConstraint(Sketcher.Constraint("DistanceX", -1, 1, 4, 3, 37.0))
sketch19.setExpression("Constraints[11]", "Params.sketch19_radius")
sketch19.setExpression("Constraints[12]", "Params.sketch19_width")
pocket12 = doc.addObject("PartDesign::Pocket", "Pocket011")
body.addObject(pocket12)
pocket12.Profile = sketch19
pocket12.setExpression("Length", "Params.pocket12_length")
pocket12.Reversed = True

# Sketch on YZ plane
sketch20 = doc.addObject("Sketcher::SketchObject", "Sketch019")
body.addObject(sketch20)
sketch20.AttachmentSupport = (doc.YZ_Plane, [""])
sketch20.MapMode = "FlatFace"
sketch20.AttachmentOffset = App.Placement(V(0, 0, 35.75), App.Rotation())
sketch20.addGeometry(Part.Circle(V(37, 3, 0), V(0, 0, 1), 2.2), False)
sketch20.addConstraint(Sketcher.Constraint("Diameter", 0, 4.5))
sketch20.addConstraint(Sketcher.Constraint("DistanceX", -1, 1, 0, 3, 37.0))
sketch20.addConstraint(Sketcher.Constraint("DistanceY", -1, 1, 0, 3, 3.0))
sketch20.setExpression("Constraints[0]", "Params.sketch20_diameter")
pocket13 = doc.addObject("PartDesign::Pocket", "Pocket012")
body.addObject(pocket13)
pocket13.Profile = sketch20
pocket13.setExpression("Length", "Params.pocket13_length")
pocket13.Reversed = True

# Sketch on YZ plane
sketch21 = doc.addObject("Sketcher::SketchObject", "Sketch020")
body.addObject(sketch21)
sketch21.AttachmentSupport = (doc.YZ_Plane, [""])
sketch21.MapMode = "FlatFace"
sketch21.AttachmentOffset = App.Placement(V(0, 0, 44), App.Rotation())
sketch21.addGeometry(Part.LineSegment(V(40, 5.5, 0), V(37, 5.5, 0)), False)
sketch21.addGeometry(Part.ArcOfCircle(Part.Circle(V(37, 3, 0), V(0, 0, 1), 2.5), math.radians(90), math.radians(180)), False)
sketch21.addGeometry(Part.LineSegment(V(34.5, 3, 0), V(34.5, 0, 0)), False)
sketch21.addGeometry(Part.LineSegment(V(34.5, 0, 0), V(40, 0, 0)), False)
sketch21.addGeometry(Part.LineSegment(V(40, 0, 0), V(40, 5.5, 0)), False)
sketch21.addConstraint(Sketcher.Constraint("Tangent", 0, 2, 1, 1))
sketch21.addConstraint(Sketcher.Constraint("Tangent", 1, 2, 2, 1))
sketch21.addConstraint(Sketcher.Constraint("Coincident", 2, 2, 3, 1))
sketch21.addConstraint(Sketcher.Constraint("Coincident", 3, 2, 4, 1))
sketch21.addConstraint(Sketcher.Constraint("Coincident", 4, 2, 0, 1))
sketch21.addConstraint(Sketcher.Constraint("Horizontal", 0))
sketch21.addConstraint(Sketcher.Constraint("Vertical", 2))
sketch21.addConstraint(Sketcher.Constraint("Horizontal", 3))
sketch21.addConstraint(Sketcher.Constraint("Vertical", 4))
sketch21.addConstraint(Sketcher.Constraint("PointOnObject", 2, 2, -1))
sketch21.addConstraint(Sketcher.Constraint("Equal", 0, 2))
sketch21.addConstraint(Sketcher.Constraint("Radius", 1, 2.5))
sketch21.addConstraint(Sketcher.Constraint("DistanceX", 0, 2, 0, 1, 3.0))
sketch21.addConstraint(Sketcher.Constraint("DistanceX", -1, 1, 1, 3, 37.0))
sketch21.setExpression("Constraints[11]", "Params.sketch21_radius")
sketch21.setExpression("Constraints[12]", "Params.sketch21_width")
pocket14 = doc.addObject("PartDesign::Pocket", "Pocket013")
body.addObject(pocket14)
pocket14.Profile = sketch21
pocket14.setExpression("Length", "Params.pocket14_length")
pocket14.Reversed = True

# Sketch on XY plane
sketch22 = doc.addObject("Sketcher::SketchObject", "Sketch021")
body.addObject(sketch22)
sketch22.AttachmentSupport = (doc.XY_Plane, [""])
sketch22.MapMode = "FlatFace"
sketch22.AttachmentOffset = App.Placement(V(0, 0, 5), App.Rotation())
add_polygon(sketch22, [(-39, 3), (-39, -11), (-19, -11), (-19, 3)])  # lines 0-3
add_polygon(sketch22, [(19, 3), (19, -11), (39, -11), (39, 3)])  # lines 4-7
sketch22.addConstraint(Sketcher.Constraint("Vertical", 0))
sketch22.addConstraint(Sketcher.Constraint("Horizontal", 1))
sketch22.addConstraint(Sketcher.Constraint("Vertical", 2))
sketch22.addConstraint(Sketcher.Constraint("Horizontal", 3))
sketch22.addConstraint(Sketcher.Constraint("Vertical", 4))
sketch22.addConstraint(Sketcher.Constraint("Horizontal", 5))
sketch22.addConstraint(Sketcher.Constraint("Vertical", 6))
sketch22.addConstraint(Sketcher.Constraint("Horizontal", 7))
sketch22.addConstraint(Sketcher.Constraint("Horizontal", 1, 2, 4, 2))
sketch22.addConstraint(Sketcher.Constraint("Horizontal", 3, 2, 6, 2))
sketch22.addConstraint(Sketcher.Constraint("Equal", 3, 5))
sketch22.addConstraint(Sketcher.Constraint("DistanceY", 0, 2, 0, 1, 14.0))
sketch22.addConstraint(Sketcher.Constraint("DistanceX", 1, 1, 1, 2, 20.4))
sketch22.addConstraint(Sketcher.Constraint("DistanceY", 0, 2, -1, 1, 11.0))
sketch22.addConstraint(Sketcher.Constraint("DistanceX", -1, 1, 5, 2, 39.0))
sketch22.addConstraint(Sketcher.Constraint("DistanceX", 0, 2, -1, 1, 39.2))
sketch22.setExpression("Constraints[19]", "Params.sketch22_height")
sketch22.setExpression("Constraints[20]", "Params.sketch22_width")
pocket15 = doc.addObject("PartDesign::Pocket", "Pocket014")
body.addObject(pocket15)
pocket15.Profile = sketch22
pocket15.Type = "ThroughAll"

# Sketch on XZ plane
sketch23 = doc.addObject("Sketcher::SketchObject", "Sketch022")
body.addObject(sketch23)
sketch23.AttachmentSupport = (doc.XZ_Plane, [""])
sketch23.MapMode = "FlatFace"
sketch23.AttachmentOffset = App.Placement(V(0, 0, -35), App.Rotation())
add_polygon(sketch23, [(-3, 12), (-3, 6), (3, 6), (3, 12)])  # lines 0-3
sketch23.addConstraint(Sketcher.Constraint("Vertical", 0))
sketch23.addConstraint(Sketcher.Constraint("Horizontal", 1))
sketch23.addConstraint(Sketcher.Constraint("Vertical", 2))
sketch23.addConstraint(Sketcher.Constraint("Horizontal", 3))
sketch23.addConstraint(Sketcher.Constraint("Equal", 3, 0))
sketch23.addConstraint(Sketcher.Constraint("DistanceX", 1, 1, 1, 2, 6.0))
sketch23.addConstraint(Sketcher.Constraint("DistanceX", 0, 2, -1, 1, 3.0))
sketch23.addConstraint(Sketcher.Constraint("DistanceY", -1, 1, 0, 2, 6.25))
sketch23.setExpression("Constraints[9]", "Params.sketch23_width")
pocket16 = doc.addObject("PartDesign::Pocket", "Pocket015")
body.addObject(pocket16)
pocket16.Profile = sketch23
pocket16.setExpression("Length", "Params.pocket16_length")

# Sketch on XY plane
sketch24 = doc.addObject("Sketcher::SketchObject", "Sketch023")
body.addObject(sketch24)
sketch24.AttachmentSupport = (doc.XY_Plane, [""])
sketch24.MapMode = "FlatFace"
sketch24.AttachmentOffset = App.Placement(V(0, 0, 13.5), App.Rotation())
add_polygon(sketch24, [(-19, 38), (-19, 32), (9, 32), (9, 38)])  # lines 0-3
sketch24.addConstraint(Sketcher.Constraint("Vertical", 0))
sketch24.addConstraint(Sketcher.Constraint("Horizontal", 1))
sketch24.addConstraint(Sketcher.Constraint("Vertical", 2))
sketch24.addConstraint(Sketcher.Constraint("Horizontal", 3))
sketch24.addConstraint(Sketcher.Constraint("DistanceY", 0, 2, 0, 1, 7.0))
sketch24.addConstraint(Sketcher.Constraint("DistanceX", 1, 1, 1, 2, 28.5))
sketch24.addConstraint(Sketcher.Constraint("DistanceX", 0, 2, -1, 1, 19.2))
sketch24.addConstraint(Sketcher.Constraint("DistanceY", -1, 1, 0, 2, 31.5))
sketch24.setExpression("Constraints[8]", "Params.sketch24_height")
sketch24.setExpression("Constraints[9]", "Params.sketch24_width")
pocket17 = doc.addObject("PartDesign::Pocket", "Pocket016")
body.addObject(pocket17)
pocket17.Profile = sketch24
pocket17.setExpression("Length", "Params.pocket17_length")

# Sketch on XZ plane
sketch25 = doc.addObject("Sketcher::SketchObject", "Sketch024")
body.addObject(sketch25)
sketch25.AttachmentSupport = (doc.XZ_Plane, [""])
sketch25.MapMode = "FlatFace"
sketch25.AttachmentOffset = App.Placement(V(0, 0, -38.5), App.Rotation())
sketch25.addGeometry(Part.Circle(V(6.3, 9.1, 0), V(0, 0, 1), 2.5), False)
sketch25.addGeometry(Part.Circle(V(-16.2, 9.1, 0), V(0, 0, 1), 2.5), False)
sketch25.addConstraint(Sketcher.Constraint("Equal", 0, 1))
sketch25.addConstraint(Sketcher.Constraint("Horizontal", 0, 3, 1, 3))
sketch25.addConstraint(Sketcher.Constraint("Diameter", 0, 5.0))
sketch25.addConstraint(Sketcher.Constraint("DistanceX", -1, 1, 0, 3, 6.3))
sketch25.addConstraint(Sketcher.Constraint("DistanceX", 1, 3, -1, 1, 16.2))
sketch25.addConstraint(Sketcher.Constraint("DistanceY", -1, 1, 0, 3, 9.05))
sketch25.setExpression("Constraints[2]", "Params.sketch25_diameter")
pad7 = doc.addObject("PartDesign::Pad", "Pad006")
body.addObject(pad7)
pad7.Profile = sketch25
pad7.setExpression("Length", "Params.pad7_length")

# Sketch on XZ plane
sketch26 = doc.addObject("Sketcher::SketchObject", "Sketch025")
body.addObject(sketch26)
sketch26.AttachmentSupport = (doc.XZ_Plane, [""])
sketch26.MapMode = "FlatFace"
sketch26.AttachmentOffset = App.Placement(V(0, 0, -36), App.Rotation())
sketch26.addGeometry(Part.Circle(V(6.3, 9.1, 0), V(0, 0, 1), 1.5), False)
sketch26.addGeometry(Part.Circle(V(-16.2, 9.1, 0), V(0, 0, 1), 1.5), False)
sketch26.addConstraint(Sketcher.Constraint("Equal", 0, 1))
sketch26.addConstraint(Sketcher.Constraint("Horizontal", 0, 3, 1, 3))
sketch26.addConstraint(Sketcher.Constraint("Diameter", 0, 3.0))
sketch26.addConstraint(Sketcher.Constraint("DistanceX", -1, 1, 0, 3, 6.3))
sketch26.addConstraint(Sketcher.Constraint("DistanceX", 1, 3, -1, 1, 16.2))
sketch26.addConstraint(Sketcher.Constraint("DistanceY", -1, 1, 0, 3, 9.05))
sketch26.setExpression("Constraints[2]", "Params.sketch26_diameter")
pocket18 = doc.addObject("PartDesign::Pocket", "Pocket017")
body.addObject(pocket18)
pocket18.Profile = sketch26
pocket18.setExpression("Length", "Params.pocket18_length")

# Sketch on XY plane
sketch27 = doc.addObject("Sketcher::SketchObject", "Sketch026")
body.addObject(sketch27)
sketch27.AttachmentSupport = (doc.XY_Plane, [""])
sketch27.MapMode = "FlatFace"
sketch27.AttachmentOffset = App.Placement(V(0, 0, 5), App.Rotation())
add_polygon(sketch27, [(-13, 32), (-13, 20), (-8, 20), (-8, 32)])  # lines 0-3
sketch27.addConstraint(Sketcher.Constraint("Vertical", 0))
sketch27.addConstraint(Sketcher.Constraint("Horizontal", 1))
sketch27.addConstraint(Sketcher.Constraint("Vertical", 2))
sketch27.addConstraint(Sketcher.Constraint("Horizontal", 3))
sketch27.addConstraint(Sketcher.Constraint("DistanceX", 1, 1, 1, 2, 5.0))
sketch27.addConstraint(Sketcher.Constraint("DistanceY", 0, 2, 0, 1, 12.0))
sketch27.addConstraint(Sketcher.Constraint("DistanceX", 0, 2, -1, 1, 13.0))
sketch27.addConstraint(Sketcher.Constraint("DistanceY", -1, 1, 0, 2, 20.0))
sketch27.setExpression("Constraints[8]", "Params.sketch27_width")
sketch27.setExpression("Constraints[9]", "Params.sketch27_height")
pocket19 = doc.addObject("PartDesign::Pocket", "Pocket018")
body.addObject(pocket19)
pocket19.Profile = sketch27
pocket19.Type = "ThroughAll"

# Sketch on XY plane
sketch28 = doc.addObject("Sketcher::SketchObject", "Sketch027")
body.addObject(sketch28)
sketch28.AttachmentSupport = (doc.XY_Plane, [""])
sketch28.MapMode = "FlatFace"
sketch28.AttachmentOffset = App.Placement(V(0, 0, 13.5), App.Rotation())
add_polygon(sketch28, [(-20, 38.5), (-20, 31.5), (-19.2, 31.5), (-19.2, 38.5)])  # lines 0-3
add_polygon(sketch28, [(9.3, 38.5), (9.3, 31.5), (9.5, 31.5), (9.5, 38.5)])  # lines 4-7
sketch28.addConstraint(Sketcher.Constraint("Vertical", 0))
sketch28.addConstraint(Sketcher.Constraint("Horizontal", 1))
sketch28.addConstraint(Sketcher.Constraint("Vertical", 2))
sketch28.addConstraint(Sketcher.Constraint("Horizontal", 3))
sketch28.addConstraint(Sketcher.Constraint("Vertical", 4))
sketch28.addConstraint(Sketcher.Constraint("Horizontal", 5))
sketch28.addConstraint(Sketcher.Constraint("Vertical", 6))
sketch28.addConstraint(Sketcher.Constraint("Horizontal", 7))
sketch28.addConstraint(Sketcher.Constraint("Horizontal", 1, 2, 4, 2))
sketch28.addConstraint(Sketcher.Constraint("Horizontal", 3, 2, 6, 2))
sketch28.addConstraint(Sketcher.Constraint("DistanceY", 0, 2, 0, 1, 7.0))
sketch28.addConstraint(Sketcher.Constraint("DistanceX", 1, 1, 1, 2, 0.8))
sketch28.addConstraint(Sketcher.Constraint("DistanceX", 5, 1, 5, 2, 0.2))
sketch28.addConstraint(Sketcher.Constraint("DistanceX", 0, 2, -1, 1, 20.0))
sketch28.addConstraint(Sketcher.Constraint("DistanceY", -1, 1, 0, 2, 31.5))
sketch28.addConstraint(Sketcher.Constraint("DistanceX", -1, 1, 4, 2, 9.3))
sketch28.setExpression("Constraints[18]", "Params.sketch28_height")
sketch28.setExpression("Constraints[19]", "Params.sketch28_width")
sketch28.setExpression("Constraints[20]", "Params.sketch28_width2")
pocket20 = doc.addObject("PartDesign::Pocket", "Pocket019")
body.addObject(pocket20)
pocket20.Profile = sketch28
pocket20.setExpression("Length", "Params.pocket20_length")

doc.recompute()
